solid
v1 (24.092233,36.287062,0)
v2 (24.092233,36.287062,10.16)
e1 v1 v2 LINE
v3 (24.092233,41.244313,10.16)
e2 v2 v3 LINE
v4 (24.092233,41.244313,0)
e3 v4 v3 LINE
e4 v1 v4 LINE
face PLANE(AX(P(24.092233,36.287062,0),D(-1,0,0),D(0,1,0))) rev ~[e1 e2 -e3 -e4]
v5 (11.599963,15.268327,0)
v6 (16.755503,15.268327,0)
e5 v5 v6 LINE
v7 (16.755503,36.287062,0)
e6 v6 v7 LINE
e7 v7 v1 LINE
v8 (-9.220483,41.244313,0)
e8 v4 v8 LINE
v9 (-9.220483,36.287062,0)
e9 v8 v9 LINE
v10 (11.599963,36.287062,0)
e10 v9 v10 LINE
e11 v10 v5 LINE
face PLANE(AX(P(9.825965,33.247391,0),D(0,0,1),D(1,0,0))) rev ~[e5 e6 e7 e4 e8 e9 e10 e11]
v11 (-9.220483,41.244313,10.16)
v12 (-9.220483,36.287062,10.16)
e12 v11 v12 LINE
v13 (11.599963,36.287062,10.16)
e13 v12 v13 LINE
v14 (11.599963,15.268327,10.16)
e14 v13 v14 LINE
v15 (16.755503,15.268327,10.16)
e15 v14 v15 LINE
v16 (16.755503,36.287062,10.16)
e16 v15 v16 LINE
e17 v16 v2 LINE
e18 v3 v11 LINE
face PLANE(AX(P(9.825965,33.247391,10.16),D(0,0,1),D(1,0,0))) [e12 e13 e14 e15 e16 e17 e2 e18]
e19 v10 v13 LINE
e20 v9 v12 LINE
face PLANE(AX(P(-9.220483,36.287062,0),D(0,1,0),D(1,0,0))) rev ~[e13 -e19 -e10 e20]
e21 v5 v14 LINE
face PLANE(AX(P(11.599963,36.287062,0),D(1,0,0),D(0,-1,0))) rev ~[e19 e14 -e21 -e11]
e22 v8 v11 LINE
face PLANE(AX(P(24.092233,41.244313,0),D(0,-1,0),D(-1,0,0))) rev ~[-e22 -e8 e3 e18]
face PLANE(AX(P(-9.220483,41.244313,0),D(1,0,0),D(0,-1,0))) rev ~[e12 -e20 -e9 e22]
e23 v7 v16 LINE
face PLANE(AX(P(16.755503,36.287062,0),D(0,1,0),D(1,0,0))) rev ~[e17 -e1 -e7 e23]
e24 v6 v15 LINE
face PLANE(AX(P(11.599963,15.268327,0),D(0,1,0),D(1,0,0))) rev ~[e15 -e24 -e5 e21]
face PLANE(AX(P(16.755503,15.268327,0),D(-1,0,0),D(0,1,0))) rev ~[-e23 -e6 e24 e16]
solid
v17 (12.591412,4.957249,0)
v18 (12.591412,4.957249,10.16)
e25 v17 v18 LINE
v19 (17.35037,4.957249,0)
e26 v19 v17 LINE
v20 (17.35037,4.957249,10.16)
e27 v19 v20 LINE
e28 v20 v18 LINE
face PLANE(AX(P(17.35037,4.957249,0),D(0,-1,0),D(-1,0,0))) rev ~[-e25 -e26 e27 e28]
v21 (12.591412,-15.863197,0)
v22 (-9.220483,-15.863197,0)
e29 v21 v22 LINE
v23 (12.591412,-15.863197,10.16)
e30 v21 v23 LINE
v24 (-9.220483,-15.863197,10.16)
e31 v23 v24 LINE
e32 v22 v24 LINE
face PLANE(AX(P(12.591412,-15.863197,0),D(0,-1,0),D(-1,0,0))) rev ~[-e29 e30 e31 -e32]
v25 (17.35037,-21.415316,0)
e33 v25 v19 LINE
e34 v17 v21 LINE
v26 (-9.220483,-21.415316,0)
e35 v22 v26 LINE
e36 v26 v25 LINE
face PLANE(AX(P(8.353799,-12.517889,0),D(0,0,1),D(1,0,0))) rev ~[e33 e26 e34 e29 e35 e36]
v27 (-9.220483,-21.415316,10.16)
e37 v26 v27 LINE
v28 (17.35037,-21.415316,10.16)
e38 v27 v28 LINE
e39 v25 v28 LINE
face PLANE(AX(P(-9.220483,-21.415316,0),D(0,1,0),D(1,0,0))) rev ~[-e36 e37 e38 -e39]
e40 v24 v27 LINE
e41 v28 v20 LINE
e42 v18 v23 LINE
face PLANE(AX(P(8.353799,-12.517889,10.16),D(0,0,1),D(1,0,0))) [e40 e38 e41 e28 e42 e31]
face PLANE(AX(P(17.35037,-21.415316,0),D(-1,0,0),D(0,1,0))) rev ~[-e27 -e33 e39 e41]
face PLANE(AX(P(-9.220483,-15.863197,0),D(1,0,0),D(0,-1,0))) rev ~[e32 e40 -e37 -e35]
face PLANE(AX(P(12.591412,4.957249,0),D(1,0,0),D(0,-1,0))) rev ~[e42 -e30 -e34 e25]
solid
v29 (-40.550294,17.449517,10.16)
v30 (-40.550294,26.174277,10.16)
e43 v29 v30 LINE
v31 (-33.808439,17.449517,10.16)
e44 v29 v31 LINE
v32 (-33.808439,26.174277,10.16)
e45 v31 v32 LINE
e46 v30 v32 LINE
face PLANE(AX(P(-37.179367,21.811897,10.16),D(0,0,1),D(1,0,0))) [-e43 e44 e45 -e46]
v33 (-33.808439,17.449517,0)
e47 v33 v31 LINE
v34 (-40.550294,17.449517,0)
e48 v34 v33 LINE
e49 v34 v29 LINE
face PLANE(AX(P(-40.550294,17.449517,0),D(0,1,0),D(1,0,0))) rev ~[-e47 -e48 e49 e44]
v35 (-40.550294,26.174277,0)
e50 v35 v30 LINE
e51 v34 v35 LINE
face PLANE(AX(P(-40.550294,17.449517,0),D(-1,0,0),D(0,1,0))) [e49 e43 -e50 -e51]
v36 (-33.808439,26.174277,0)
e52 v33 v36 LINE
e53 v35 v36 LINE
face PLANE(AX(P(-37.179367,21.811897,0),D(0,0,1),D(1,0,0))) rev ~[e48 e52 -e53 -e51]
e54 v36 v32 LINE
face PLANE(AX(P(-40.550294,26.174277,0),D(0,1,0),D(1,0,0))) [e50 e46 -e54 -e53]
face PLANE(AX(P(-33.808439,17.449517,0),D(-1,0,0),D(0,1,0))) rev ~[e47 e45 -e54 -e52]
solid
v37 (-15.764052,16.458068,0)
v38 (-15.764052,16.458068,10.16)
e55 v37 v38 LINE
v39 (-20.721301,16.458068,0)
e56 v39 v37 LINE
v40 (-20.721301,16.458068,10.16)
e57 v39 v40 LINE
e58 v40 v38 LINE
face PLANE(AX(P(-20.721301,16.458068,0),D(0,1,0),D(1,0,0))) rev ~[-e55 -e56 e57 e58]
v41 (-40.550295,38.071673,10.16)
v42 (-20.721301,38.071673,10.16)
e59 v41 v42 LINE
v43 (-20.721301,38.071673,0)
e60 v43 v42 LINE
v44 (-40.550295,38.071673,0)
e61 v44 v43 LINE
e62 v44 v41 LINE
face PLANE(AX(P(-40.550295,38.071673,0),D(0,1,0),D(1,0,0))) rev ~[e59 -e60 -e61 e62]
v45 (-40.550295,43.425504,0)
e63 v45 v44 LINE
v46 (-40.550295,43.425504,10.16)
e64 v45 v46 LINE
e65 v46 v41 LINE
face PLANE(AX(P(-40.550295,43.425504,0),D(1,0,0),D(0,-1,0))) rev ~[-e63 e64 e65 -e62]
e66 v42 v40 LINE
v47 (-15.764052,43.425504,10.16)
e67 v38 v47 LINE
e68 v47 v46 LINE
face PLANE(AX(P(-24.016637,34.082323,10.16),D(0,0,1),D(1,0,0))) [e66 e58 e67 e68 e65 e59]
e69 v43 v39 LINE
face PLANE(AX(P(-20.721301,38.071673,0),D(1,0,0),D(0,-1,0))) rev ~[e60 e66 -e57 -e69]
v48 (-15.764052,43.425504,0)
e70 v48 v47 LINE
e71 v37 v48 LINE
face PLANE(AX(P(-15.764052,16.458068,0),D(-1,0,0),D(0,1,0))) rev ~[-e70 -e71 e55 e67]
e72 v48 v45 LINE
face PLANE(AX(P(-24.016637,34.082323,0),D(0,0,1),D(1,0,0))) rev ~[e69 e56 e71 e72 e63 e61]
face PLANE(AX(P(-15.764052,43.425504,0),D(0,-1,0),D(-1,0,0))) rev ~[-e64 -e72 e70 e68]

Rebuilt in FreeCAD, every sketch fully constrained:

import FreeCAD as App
import Part
import Sketcher

V = App.Vector
Q = App.Units.Quantity

doc = App.newDocument("Part")
params = doc.addObject("Spreadsheet::Sheet", "Params")
for row, (alias, value) in enumerate([
    ("pad1_length", "0.4 in"),
], start=1):
    params.set(f"A{row}", alias)
    params.set(f"B{row}", "=" + value)
    params.setAlias(f"B{row}", alias)

body = doc.addObject("PartDesign::Body", "Body")
body.AllowCompound = True

sketch1 = body.newObject("Sketcher::SketchObject", "Sketch")
sketch1.AttachmentSupport = (doc.getObject("XY_Plane"), [""])
sketch1.MapMode = "FlatFace"
sketch1.addGeometry(Part.LineSegment(V(24.1, 41.2, 0), V(-9.2, 41.2, 0)), False)
sketch1.addGeometry(Part.LineSegment(V(-9.2, 41.2, 0), V(-9.2, 36.3, 0)), False)
sketch1.addGeometry(Part.LineSegment(V(-9.2, 36.3, 0), V(11.6, 36.3, 0)), False)
sketch1.addGeometry(Part.LineSegment(V(11.6, 36.3, 0), V(11.6, 15.3, 0)), False)
sketch1.addGeometry(Part.LineSegment(V(11.6, 15.3, 0), V(16.8, 15.3, 0)), False)
sketch1.addGeometry(Part.LineSegment(V(16.8, 15.3, 0), V(16.8, 36.3, 0)), False)
sketch1.addGeometry(Part.LineSegment(V(16.8, 36.3, 0), V(24.1, 36.3, 0)), False)
sketch1.addGeometry(Part.LineSegment(V(24.1, 36.3, 0), V(24.1, 41.2, 0)), False)
sketch1.addGeometry(Part.LineSegment(V(17.4, 5, 0), V(12.6, 5, 0)), False)
sketch1.addGeometry(Part.LineSegment(V(12.6, 5, 0), V(12.6, -15.9, 0)), False)
sketch1.addGeometry(Part.LineSegment(V(12.6, -15.9, 0), V(-9.2, -15.9, 0)), False)
sketch1.addGeometry(Part.LineSegment(V(-9.2, -15.9, 0), V(-9.2, -21.4, 0)), False)
sketch1.addGeometry(Part.LineSegment(V(-9.2, -21.4, 0), V(17.4, -21.4, 0)), False)
sketch1.addGeometry(Part.LineSegment(V(17.4, -21.4, 0), V(17.4, 5, 0)), False)
sketch1.addGeometry(Part.LineSegment(V(-40.6, 43.4, 0), V(-40.6, 38.1, 0)), False)
sketch1.addGeometry(Part.LineSegment(V(-40.6, 38.1, 0), V(-20.7, 38.1, 0)), False)
sketch1.addGeometry(Part.LineSegment(V(-20.7, 38.1, 0), V(-20.7, 16.5, 0)), False)
sketch1.addGeometry(Part.LineSegment(V(-20.7, 16.5, 0), V(-15.8, 16.5, 0)), False)
sketch1.addGeometry(Part.LineSegment(V(-15.8, 16.5, 0), V(-15.8, 43.4, 0)), False)
sketch1.addGeometry(Part.LineSegment(V(-15.8, 43.4, 0), V(-40.6, 43.4, 0)), False)
sketch1.addGeometry(Part.LineSegment(V(-40.6, 26.2, 0), V(-40.6, 17.4, 0)), False)
sketch1.addGeometry(Part.LineSegment(V(-40.6, 17.4, 0), V(-33.8, 17.4, 0)), False)
sketch1.addGeometry(Part.LineSegment(V(-33.8, 17.4, 0), V(-33.8, 26.2, 0)), False)
sketch1.addGeometry(Part.LineSegment(V(-33.8, 26.2, 0), V(-40.6, 26.2, 0)), False)
sketch1.addConstraint(Sketcher.Constraint("Coincident", 0, 2, 1, 1))
sketch1.addConstraint(Sketcher.Constraint("Coincident", 1, 2, 2, 1))
sketch1.addConstraint(Sketcher.Constraint("Coincident", 2, 2, 3, 1))
sketch1.addConstraint(Sketcher.Constraint("Coincident", 3, 2, 4, 1))
sketch1.addConstraint(Sketcher.Constraint("Coincident", 4, 2, 5, 1))
sketch1.addConstraint(Sketcher.Constraint("Coincident", 5, 2, 6, 1))
sketch1.addConstraint(Sketcher.Constraint("Coincident", 6, 2, 7, 1))
sketch1.addConstraint(Sketcher.Constraint("Coincident", 7, 2, 0, 1))
sketch1.addConstraint(Sketcher.Constraint("Coincident", 8, 2, 9, 1))
sketch1.addConstraint(Sketcher.Constraint("Coincident", 9, 2, 10, 1))
sketch1.addConstraint(Sketcher.Constraint("Coincident", 10, 2, 11, 1))
sketch1.addConstraint(Sketcher.Constraint("Coincident", 11, 2, 12, 1))
sketch1.addConstraint(Sketcher.Constraint("Coincident", 12, 2, 13, 1))
sketch1.addConstraint(Sketcher.Constraint("Coincident", 13, 2, 8, 1))
sketch1.addConstraint(Sketcher.Constraint("Coincident", 14, 2, 15, 1))
sketch1.addConstraint(Sketcher.Constraint("Coincident", 15, 2, 16, 1))
sketch1.addConstraint(Sketcher.Constraint("Coincident", 16, 2, 17, 1))
sketch1.addConstraint(Sketcher.Constraint("Coincident", 17, 2, 18, 1))
sketch1.addConstraint(Sketcher.Constraint("Coincident", 18, 2, 19, 1))
sketch1.addConstraint(Sketcher.Constraint("Coincident", 19, 2, 14, 1))
sketch1.addConstraint(Sketcher.Constraint("Coincident", 20, 2, 21, 1))
sketch1.addConstraint(Sketcher.Constraint("Coincident", 21, 2, 22, 1))
sketch1.addConstraint(Sketcher.Constraint("Coincident", 22, 2, 23, 1))
sketch1.addConstraint(Sketcher.Constraint("Coincident", 23, 2, 20, 1))
sketch1.addConstraint(Sketcher.Constraint("Horizontal", 0))
sketch1.addConstraint(Sketcher.Constraint("Vertical", 1))
sketch1.addConstraint(Sketcher.Constraint("Horizontal", 2))
sketch1.addConstraint(Sketcher.Constraint("Vertical", 3))
sketch1.addConstraint(Sketcher.Constraint("Horizontal", 4))
sketch1.addConstraint(Sketcher.Constraint("Vertical", 5))
sketch1.addConstraint(Sketcher.Constraint("Horizontal", 6))
sketch1.addConstraint(Sketcher.Constraint("Vertical", 7))
sketch1.addConstraint(Sketcher.Constraint("Horizontal", 8))
sketch1.addConstraint(Sketcher.Constraint("Vertical", 9))
sketch1.addConstraint(Sketcher.Constraint("Horizontal", 10))
sketch1.addConstraint(Sketcher.Constraint("Vertical", 11))
sketch1.addConstraint(Sketcher.Constraint("Horizontal", 12))
sketch1.addConstraint(Sketcher.Constraint("Vertical", 13))
sketch1.addConstraint(Sketcher.Constraint("Vertical", 14))
sketch1.addConstraint(Sketcher.Constraint("Horizontal", 15))
sketch1.addConstraint(Sketcher.Constraint("Vertical", 16))
sketch1.addConstraint(Sketcher.Constraint("Horizontal", 17))
sketch1.addConstraint(Sketcher.Constraint("Vertical", 18))
sketch1.addConstraint(Sketcher.Constraint("Horizontal", 19))
sketch1.addConstraint(Sketcher.Constraint("Vertical", 20))
sketch1.addConstraint(Sketcher.Constraint("Horizontal", 21))
sketch1.addConstraint(Sketcher.Constraint("Vertical", 22))
sketch1.addConstraint(Sketcher.Constraint("Horizontal", 23))
sketch1.addConstraint(Sketcher.Constraint("Horizontal", 2, 2, 5, 2))
sketch1.addConstraint(Sketcher.Constraint("Vertical", 1, 2, 10, 2))
sketch1.addConstraint(Sketcher.Constraint("Vertical", 19, 2, 20, 2))
sketch1.addConstraint(Sketcher.Constraint("Equal", 17, 1))
sketch1.addConstraint(Sketcher.Constraint("Equal", 2, 9))
sketch1.addConstraint(Sketcher.Constraint("DistanceX", 4, 1, 4, 2, Q("5.15554 mm")))
sketch1.addConstraint(Sketcher.Constraint("DistanceX", 6, 1, 6, 2, Q("7.33673 mm")))
sketch1.addConstraint(Sketcher.Constraint("DistanceX", 8, 2, 8, 1, Q("4.758958 mm")))
sketch1.addConstraint(Sketcher.Constraint("DistanceX", 17, 1, 17, 2, Q("4.957249 mm")))
sketch1.addConstraint(Sketcher.Constraint("DistanceY", 11, 2, 11, 1, Q("5.552119 mm")))
sketch1.addConstraint(Sketcher.Constraint("DistanceY", 14, 2, 14, 1, Q("5.353831 mm")))
sketch1.addConstraint(Sketcher.Constraint("DistanceY", 20, 2, 20, 1, Q("8.72476 mm")))
sketch1.addConstraint(Sketcher.Constraint("DistanceX", 15, 2, -1, 1, Q("20.721301 mm")))
sketch1.addConstraint(Sketcher.Constraint("DistanceX", 0, 2, 0, 1, Q("33.312716 mm")))
sketch1.addConstraint(Sketcher.Constraint("DistanceX", 10, 2, 10, 1, Q("21.811895 mm")))
sketch1.addConstraint(Sketcher.Constraint("DistanceX", 15, 1, 15, 2, Q("19.828994 mm")))
sketch1.addConstraint(Sketcher.Constraint("DistanceX", 21, 1, 21, 2, Q("6.741855 mm")))
sketch1.addConstraint(Sketcher.Constraint("DistanceY", 3, 2, 3, 1, Q("21.018735 mm")))
sketch1.addConstraint(Sketcher.Constraint("DistanceY", 16, 2, 16, 1, Q("21.613605 mm")))
sketch1.addConstraint(Sketcher.Constraint("DistanceY", -1, 1, 8, 2, Q("4.957249 mm")))
sketch1.addConstraint(Sketcher.Constraint("DistanceX", -1, 1, 12, 2, Q("17.35037 mm")))
sketch1.addConstraint(Sketcher.Constraint("DistanceY", -1, 1, 16, 2, Q("16.458068 mm")))
sketch1.addConstraint(Sketcher.Constraint("DistanceY", 9, 2, 2, 2, Q("52.150259 mm")))
sketch1.addConstraint(Sketcher.Constraint("DistanceY", 16, 2, 20, 2, Q("0.991449 mm")))
pad1 = body.newObject("PartDesign::Pad", "Pad")
pad1.Profile = sketch1
pad1.setExpression("Length", "Params.pad1_length")

doc.recompute()
